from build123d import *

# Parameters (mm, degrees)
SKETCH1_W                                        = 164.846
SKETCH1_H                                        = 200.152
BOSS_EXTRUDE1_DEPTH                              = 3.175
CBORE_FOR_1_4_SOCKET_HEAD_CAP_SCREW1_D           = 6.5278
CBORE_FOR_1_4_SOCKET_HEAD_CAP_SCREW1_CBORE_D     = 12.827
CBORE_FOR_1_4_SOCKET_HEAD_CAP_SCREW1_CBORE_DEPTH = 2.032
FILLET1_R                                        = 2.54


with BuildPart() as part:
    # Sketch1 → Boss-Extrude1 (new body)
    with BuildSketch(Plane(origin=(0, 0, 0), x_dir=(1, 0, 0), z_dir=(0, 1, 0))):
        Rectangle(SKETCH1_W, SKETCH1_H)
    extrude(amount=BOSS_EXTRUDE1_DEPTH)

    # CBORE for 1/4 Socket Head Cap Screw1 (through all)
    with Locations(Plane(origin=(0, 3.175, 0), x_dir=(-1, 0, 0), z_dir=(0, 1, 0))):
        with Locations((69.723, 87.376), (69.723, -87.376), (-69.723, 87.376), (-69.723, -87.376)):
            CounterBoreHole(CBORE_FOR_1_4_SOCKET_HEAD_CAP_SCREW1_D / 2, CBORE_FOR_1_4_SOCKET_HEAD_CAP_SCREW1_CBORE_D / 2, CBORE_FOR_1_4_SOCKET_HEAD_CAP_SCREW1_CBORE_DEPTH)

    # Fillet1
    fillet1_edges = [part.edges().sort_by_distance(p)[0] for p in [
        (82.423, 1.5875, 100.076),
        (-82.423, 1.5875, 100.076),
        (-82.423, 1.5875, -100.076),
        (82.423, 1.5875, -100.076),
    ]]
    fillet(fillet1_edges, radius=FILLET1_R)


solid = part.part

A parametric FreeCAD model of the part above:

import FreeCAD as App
import Part
import Sketcher

V = App.Vector
Q = App.Units.Quantity


def edges_at(feature, points):
    """Names of the edges that pass closest to the given points."""
    edges = feature.Shape.Edges
    near = lambda p: min(range(len(edges)), key=lambda i: edges[i].distToShape(Part.Vertex(*p))[0])
    return sorted({f"Edge{near(p) + 1}" for p in points})


def add_polygon(sketch, points):
    """Adds a closed chain of lines whose ends are joined by coincident constraints."""
    first, n = sketch.GeometryCount, len(points)
    for a, b in zip(points, points[1:] + points[:1]):
        sketch.addGeometry(Part.LineSegment(App.Vector(*a, 0), App.Vector(*b, 0)), False)
    for i in range(n):
        sketch.addConstraint(Sketcher.Constraint("Coincident", first + i, 2, first + (i + 1) % n, 1))

doc = App.newDocument("Part")
body = doc.addObject("PartDesign::Body", "Body")

sketch1 = body.newObject("Sketcher::SketchObject", "Sketch")
sketch1.AttachmentSupport = (doc.getObject("XZ_Plane"), [""])
sketch1.MapMode = "FlatFace"
add_polygon(sketch1, [(-82.423, -100.076), (-82.423, 100.076), (82.423, 100.076), (82.423, -100.076)])
sketch1.addConstraint([
    Sketcher.Constraint("Vertical", 0),
    Sketcher.Constraint("Horizontal", 1),
    Sketcher.Constraint("Vertical", 2),
    Sketcher.Constraint("Horizontal", 3),
    Sketcher.Constraint("Symmetric", 0, 2, 2, 2, -1, 1),
    Sketcher.Constraint("DistanceX", 1, 1, 1, 2, Q("6.49 in")),
    Sketcher.Constraint("DistanceY", 0, 1, 0, 2, Q("7.88 in")),
])
pad1 = body.newObject("PartDesign::Pad", "Pad")
pad1.Profile = sketch1
pad1.Length = Q("0.125 in")
pad1.Reversed = True

sketch2 = body.newObject("Sketcher::SketchObject", "Sketch001")
sketch2.AttachmentSupport = (doc.getObject("XZ_Plane"), [""])
sketch2.MapMode = "FlatFace"
sketch2.AttachmentOffset = App.Placement(V(0, 0, -0.125 * 25.4), App.Rotation())
sketch2.addGeometry([
    Part.Circle(V(-69.723, 87.376, 0), V(0, 0, 1), 3.2639),
    Part.Circle(V(-69.723, -87.376, 0), V(0, 0, 1), 3.2639),
    Part.Circle(V(69.723, 87.376, 0), V(0, 0, 1), 3.2639),
    Part.Circle(V(69.723, -87.376, 0), V(0, 0, 1), 3.2639),
], False)
sketch2.addConstraint([
    Sketcher.Constraint("Equal", 0, 1),
    Sketcher.Constraint("Equal", 1, 2),
    Sketcher.Constraint("Equal", 2, 3),
    Sketcher.Constraint("Symmetric", 1, 3, 2, 3, -1, 1),
    Sketcher.Constraint("Symmetric", 0, 3, 3, 3, -1, 1),
    Sketcher.Constraint("Symmetric", 0, 3, 2, 3, -2),
    Sketcher.Constraint("Diameter", 0, Q("0.257 in")),
    Sketcher.Constraint("DistanceY", -1, 1, 0, 3, Q("3.44 in")),
    Sketcher.Constraint("DistanceX", 0, 3, 2, 3, Q("5.49 in")),
])
doc.recompute()
hole = body.newObject("PartDesign::Hole", "Hole")
hole.Profile = sketch2
hole.ThreadType = "None"
hole.Diameter = Q("0.257 in")
hole.DepthType = "ThroughAll"
hole.HoleCutType = "Counterbore"
hole.HoleCutDiameter = Q("0.505 in")
hole.HoleCutDepth = Q("0.08 in")
hole.Reversed = True
doc.recompute()

fillet = body.newObject("PartDesign::Fillet", "Fillet")
fillet.Base = (hole, edges_at(hole, [
    (82.423, 1.587, 100.076),
    (-82.423, 1.587, 100.076),
    (-82.423, 1.587, -100.076),
    (82.423, 1.587, -100.076),
]))
fillet.Radius = Q("0.1 in")

doc.recompute()
